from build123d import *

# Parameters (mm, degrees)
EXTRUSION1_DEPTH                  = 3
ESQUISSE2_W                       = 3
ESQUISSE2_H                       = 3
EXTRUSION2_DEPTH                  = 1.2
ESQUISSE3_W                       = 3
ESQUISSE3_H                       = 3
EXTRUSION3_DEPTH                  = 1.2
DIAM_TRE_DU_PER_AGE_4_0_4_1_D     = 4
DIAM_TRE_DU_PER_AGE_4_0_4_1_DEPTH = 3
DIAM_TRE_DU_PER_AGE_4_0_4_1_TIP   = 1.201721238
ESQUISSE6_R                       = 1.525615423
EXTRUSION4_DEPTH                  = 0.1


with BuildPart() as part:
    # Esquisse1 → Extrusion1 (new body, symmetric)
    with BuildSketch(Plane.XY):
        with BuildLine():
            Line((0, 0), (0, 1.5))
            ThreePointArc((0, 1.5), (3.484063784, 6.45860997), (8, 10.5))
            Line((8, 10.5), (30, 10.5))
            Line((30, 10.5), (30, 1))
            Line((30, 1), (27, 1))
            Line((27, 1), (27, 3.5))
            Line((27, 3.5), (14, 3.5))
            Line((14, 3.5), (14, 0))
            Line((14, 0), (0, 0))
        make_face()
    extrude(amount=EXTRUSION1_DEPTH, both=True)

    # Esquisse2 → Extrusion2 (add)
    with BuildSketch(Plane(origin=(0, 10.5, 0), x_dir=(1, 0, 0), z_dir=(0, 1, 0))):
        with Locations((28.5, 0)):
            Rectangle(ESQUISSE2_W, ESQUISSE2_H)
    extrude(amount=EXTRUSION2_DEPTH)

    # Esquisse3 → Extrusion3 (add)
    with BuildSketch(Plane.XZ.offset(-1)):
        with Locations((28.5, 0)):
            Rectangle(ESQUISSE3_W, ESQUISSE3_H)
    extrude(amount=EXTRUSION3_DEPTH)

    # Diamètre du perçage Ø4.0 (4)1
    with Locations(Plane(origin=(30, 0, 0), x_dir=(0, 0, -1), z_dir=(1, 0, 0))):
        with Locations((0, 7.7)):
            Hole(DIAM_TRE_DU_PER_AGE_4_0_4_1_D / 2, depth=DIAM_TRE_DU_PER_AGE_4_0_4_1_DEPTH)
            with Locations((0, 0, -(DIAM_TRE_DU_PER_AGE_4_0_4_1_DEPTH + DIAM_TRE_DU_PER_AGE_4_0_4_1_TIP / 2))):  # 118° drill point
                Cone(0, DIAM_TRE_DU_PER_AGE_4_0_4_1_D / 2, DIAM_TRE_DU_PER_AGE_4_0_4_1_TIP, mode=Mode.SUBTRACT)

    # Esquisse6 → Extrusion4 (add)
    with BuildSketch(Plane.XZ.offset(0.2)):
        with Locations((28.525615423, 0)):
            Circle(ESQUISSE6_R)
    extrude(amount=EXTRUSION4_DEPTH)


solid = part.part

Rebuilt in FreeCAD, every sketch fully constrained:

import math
import FreeCAD as App
import Part
import Sketcher
Q = App.Units.Quantity


def add_polygon(sketch, points):
    """Adds a closed chain of lines whose ends are joined by coincident constraints."""
    first, n = sketch.GeometryCount, len(points)
    for a, b in zip(points, points[1:] + points[:1]):
        sketch.addGeometry(Part.LineSegment(App.Vector(*a, 0), App.Vector(*b, 0)), False)
    for i in range(n):
        sketch.addConstraint(Sketcher.Constraint("Coincident", first + i, 2, first + (i + 1) % n, 1))

doc = App.newDocument("Part")
body = doc.addObject("PartDesign::Body", "Body")

# Sketch on XY plane
sketch1 = body.newObject("Sketcher::SketchObject", "Sketch")
sketch1.AttachmentSupport = (doc.getObject("XY_Plane"), [""])
sketch1.MapMode = "FlatFace"
sketch1.addGeometry([
    Part.LineSegment(App.Vector(0, 1.5, 0), App.Vector(0, 0, 0)),  # 0
    Part.LineSegment(App.Vector(0, 0, 0), App.Vector(14, 0, 0)),  # 1
    Part.LineSegment(App.Vector(14, 0, 0), App.Vector(14, 3.5, 0)),  # 2
    Part.LineSegment(App.Vector(14, 3.5, 0), App.Vector(27, 3.5, 0)),  # 3
    Part.LineSegment(App.Vector(27, 3.5, 0), App.Vector(27, 1, 0)),  # 4
    Part.LineSegment(App.Vector(27, 1, 0), App.Vector(30, 1, 0)),  # 5
    Part.LineSegment(App.Vector(30, 1, 0), App.Vector(30, 10.5, 0)),  # 6
    Part.LineSegment(App.Vector(30, 10.5, 0), App.Vector(8, 10.5, 0)),  # 7
    Part.ArcOfCircle(Part.Circle(App.Vector(23.4, -11.2, 0), App.Vector(0, 0, 1), 26.6), math.radians(125), math.radians(151)),  # 8
], False)
sketch1.addConstraint([
    Sketcher.Constraint("Coincident", 0, 2, 1, 1),
    Sketcher.Constraint("Coincident", 1, 2, 2, 1),
    Sketcher.Constraint("Coincident", 2, 2, 3, 1),
    Sketcher.Constraint("Coincident", 3, 2, 4, 1),
    Sketcher.Constraint("Coincident", 4, 2, 5, 1),
    Sketcher.Constraint("Coincident", 5, 2, 6, 1),
    Sketcher.Constraint("Coincident", 6, 2, 7, 1),
    Sketcher.Constraint("Coincident", 7, 2, 8, 1),
    Sketcher.Constraint("Coincident", 8, 2, 0, 1),
    Sketcher.Constraint("Vertical", 0),
    Sketcher.Constraint("Horizontal", 1),
    Sketcher.Constraint("Vertical", 2),
    Sketcher.Constraint("Horizontal", 3),
    Sketcher.Constraint("Vertical", 4),
    Sketcher.Constraint("Horizontal", 5),
    Sketcher.Constraint("Vertical", 6),
    Sketcher.Constraint("Horizontal", 7),
    Sketcher.Constraint("Coincident", 0, 2, -1, 1),
    Sketcher.Constraint("DistanceX", 1, 1, 1, 2, Q("14 mm")),
    Sketcher.Constraint("DistanceX", 3, 1, 3, 2, Q("13 mm")),
    Sketcher.Constraint("DistanceX", 5, 1, 5, 2, Q("3 mm")),
    Sketcher.Constraint("DistanceX", 7, 2, 7, 1, Q("22 mm")),
    Sketcher.Constraint("DistanceY", 0, 2, 0, 1, Q("1.5 mm")),
    Sketcher.Constraint("DistanceY", 2, 1, 2, 2, Q("3.5 mm")),
    Sketcher.Constraint("DistanceY", 4, 2, 4, 1, Q("2.5 mm")),
    Sketcher.Constraint("DistanceY", 6, 1, 6, 2, Q("9.5 mm")),
    Sketcher.Constraint("Radius", 8, Q("26.601872 mm")),
])
pad1 = body.newObject("PartDesign::Pad", "Pad")
pad1.Profile = sketch1
pad1.Length = 6
pad1.Midplane = True

# Sketch on XZ plane
sketch2 = body.newObject("Sketcher::SketchObject", "Sketch001")
sketch2.AttachmentSupport = (doc.getObject("XZ_Plane"), [""])
sketch2.MapMode = "FlatFace"
sketch2.AttachmentOffset = App.Placement(App.Vector(0, 0, -10.5), App.Rotation())
add_polygon(sketch2, [(27, -1.5), (27, 1.5), (30, 1.5), (30, -1.5)])  # lines 0-3
sketch2.addConstraint([
    Sketcher.Constraint("Vertical", 0),
    Sketcher.Constraint("Horizontal", 1),
    Sketcher.Constraint("Vertical", 2),
    Sketcher.Constraint("Horizontal", 3),
    Sketcher.Constraint("Equal", 3, 0),
    Sketcher.Constraint("DistanceX", 1, 1, 1, 2, Q("3 mm")),
    Sketcher.Constraint("DistanceX", -1, 1, 0, 2, Q("27 mm")),
    Sketcher.Constraint("DistanceY", -1, 1, 0, 2, Q("1.5 mm")),
])
pad2 = body.newObject("PartDesign::Pad", "Pad001")
pad2.Profile = sketch2
pad2.Length = 1.2
pad2.Reversed = True

# Sketch on XZ plane
sketch3 = body.newObject("Sketcher::SketchObject", "Sketch002")
sketch3.AttachmentSupport = (doc.getObject("XZ_Plane"), [""])
sketch3.MapMode = "FlatFace"
sketch3.AttachmentOffset = App.Placement(App.Vector(0, 0, -1), App.Rotation())
add_polygon(sketch3, [(27, 1.5), (27, -1.5), (30, -1.5), (30, 1.5)])  # lines 0-3
sketch3.addConstraint([
    Sketcher.Constraint("Vertical", 0),
    Sketcher.Constraint("Horizontal", 1),
    Sketcher.Constraint("Vertical", 2),
    Sketcher.Constraint("Horizontal", 3),
    Sketcher.Constraint("Equal", 3, 0),
    Sketcher.Constraint("DistanceX", 1, 1, 1, 2, Q("3 mm")),
    Sketcher.Constraint("DistanceX", -1, 1, 0, 2, Q("27 mm")),
    Sketcher.Constraint("DistanceY", 0, 2, -1, 1, Q("1.5 mm")),
])
pad3 = body.newObject("PartDesign::Pad", "Pad002")
pad3.Profile = sketch3
pad3.Length = 1.2

# Sketch on YZ plane
sketch4 = body.newObject("Sketcher::SketchObject", "Sketch003")
sketch4.AttachmentSupport = (doc.getObject("YZ_Plane"), [""])
sketch4.MapMode = "FlatFace"
sketch4.AttachmentOffset = App.Placement(App.Vector(0, 0, 30), App.Rotation())
sketch4.addGeometry(Part.Circle(App.Vector(7.7, 0, 0), App.Vector(0, 0, 1), 2), False)
sketch4.addConstraint([
    Sketcher.Constraint("PointOnObject", 0, 3, -1),
    Sketcher.Constraint("Diameter", 0, Q("4 mm")),
    Sketcher.Constraint("DistanceX", -1, 1, 0, 3, Q("7.7 mm")),
])
doc.recompute()
hole = body.newObject("PartDesign::Hole", "Hole")
hole.Profile = sketch4
hole.ThreadType = "None"
hole.Diameter = 4
hole.DepthType = "Dimension"
hole.Depth = 3
hole.DrillPoint = "Angled"
hole.DrillPointAngle = 118

# Sketch on XZ plane
sketch5 = body.newObject("Sketcher::SketchObject", "Sketch004")
sketch5.AttachmentSupport = (doc.getObject("XZ_Plane"), [""])
sketch5.MapMode = "FlatFace"
sketch5.AttachmentOffset = App.Placement(App.Vector(0, 0, 0.2), App.Rotation())
sketch5.addGeometry(Part.Circle(App.Vector(28.5, 0, 0), App.Vector(0, 0, 1), 1.5), False)
sketch5.addConstraint([
    Sketcher.Constraint("PointOnObject", 0, 3, -1),
    Sketcher.Constraint("Diameter", 0, Q("3.051231 mm")),
    Sketcher.Constraint("DistanceX", -1, 1, 0, 3, Q("28.525615 mm")),
])
pad4 = body.newObject("PartDesign::Pad", "Pad003")
pad4.Profile = sketch5
pad4.Length = 0.1

doc.recompute()
